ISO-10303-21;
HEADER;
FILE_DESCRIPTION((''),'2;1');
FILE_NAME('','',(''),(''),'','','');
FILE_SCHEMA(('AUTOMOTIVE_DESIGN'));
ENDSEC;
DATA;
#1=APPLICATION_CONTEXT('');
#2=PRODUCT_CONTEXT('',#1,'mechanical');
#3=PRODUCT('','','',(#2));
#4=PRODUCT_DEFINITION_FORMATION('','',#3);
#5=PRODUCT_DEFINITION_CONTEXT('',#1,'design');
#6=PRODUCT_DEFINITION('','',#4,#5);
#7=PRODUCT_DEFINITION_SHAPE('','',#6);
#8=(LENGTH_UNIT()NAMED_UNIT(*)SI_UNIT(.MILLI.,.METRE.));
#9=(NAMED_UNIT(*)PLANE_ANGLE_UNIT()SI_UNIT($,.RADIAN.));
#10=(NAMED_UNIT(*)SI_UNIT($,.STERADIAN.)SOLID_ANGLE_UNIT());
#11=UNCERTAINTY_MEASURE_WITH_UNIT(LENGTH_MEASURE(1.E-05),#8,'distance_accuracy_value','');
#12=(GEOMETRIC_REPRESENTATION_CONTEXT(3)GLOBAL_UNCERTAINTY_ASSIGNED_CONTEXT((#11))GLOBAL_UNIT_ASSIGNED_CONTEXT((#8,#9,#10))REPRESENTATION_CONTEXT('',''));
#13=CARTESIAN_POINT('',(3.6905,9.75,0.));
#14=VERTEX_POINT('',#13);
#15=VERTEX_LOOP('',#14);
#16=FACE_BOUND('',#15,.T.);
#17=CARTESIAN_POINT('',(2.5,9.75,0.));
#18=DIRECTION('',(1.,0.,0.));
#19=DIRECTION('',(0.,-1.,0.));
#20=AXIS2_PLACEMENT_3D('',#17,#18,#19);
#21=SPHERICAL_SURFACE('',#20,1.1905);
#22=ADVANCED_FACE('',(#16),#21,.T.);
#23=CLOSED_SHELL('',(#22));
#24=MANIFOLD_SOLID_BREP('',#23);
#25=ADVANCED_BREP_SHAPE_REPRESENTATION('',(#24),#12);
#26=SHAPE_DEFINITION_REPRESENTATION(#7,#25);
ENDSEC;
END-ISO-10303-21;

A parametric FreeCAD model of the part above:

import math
import FreeCAD as App
import Part
import Sketcher

doc = App.newDocument("Part")
body = doc.addObject("PartDesign::Body", "Body")

# Sketch on XY plane
sketch1 = body.newObject("Sketcher::SketchObject", "Sketch")
sketch1.AttachmentSupport = (doc.getObject("XY_Plane"), [""])
sketch1.MapMode = "FlatFace"
sketch1.addGeometry([
    Part.LineSegment(App.Vector(1.3, 9.8, 0), App.Vector(3.7, 9.8, 0)),
    Part.ArcOfCircle(Part.Circle(App.Vector(2.5, 9.8, 0), App.Vector(0, 0, 1), 1.2), math.radians(0), math.radians(180)),
], False)
sketch1.addGeometry(Part.LineSegment(App.Vector(3.7, 9.8, 0), App.Vector(1.3, 9.8, 0)), True)  # axis
sketch1.addConstraint([
    Sketcher.Constraint("Coincident", 0, 1, 1, 2),
    Sketcher.Constraint("Coincident", 1, 1, 0, 2),
    Sketcher.Constraint("Horizontal", 0),
    Sketcher.Constraint("Horizontal", 2),
    Sketcher.Constraint("Coincident", 2, 1, 1, 1),
    Sketcher.Constraint("Horizontal", 1, 3, 0, 1),
    Sketcher.Constraint("Equal", 0, 2),
    Sketcher.Constraint("DistanceX", -1, 1, 1, 3, 2.5),
    Sketcher.Constraint("Radius", 1, 1.1905),
    Sketcher.Constraint("DistanceY", -1, 1, 1, 3, 9.75),
])
revolution = body.newObject("PartDesign::Revolution", "Revolution")
revolution.Profile = sketch1
revolution.ReferenceAxis = (sketch1, ["Axis0"])
revolution.Angle = 360

doc.recompute()
